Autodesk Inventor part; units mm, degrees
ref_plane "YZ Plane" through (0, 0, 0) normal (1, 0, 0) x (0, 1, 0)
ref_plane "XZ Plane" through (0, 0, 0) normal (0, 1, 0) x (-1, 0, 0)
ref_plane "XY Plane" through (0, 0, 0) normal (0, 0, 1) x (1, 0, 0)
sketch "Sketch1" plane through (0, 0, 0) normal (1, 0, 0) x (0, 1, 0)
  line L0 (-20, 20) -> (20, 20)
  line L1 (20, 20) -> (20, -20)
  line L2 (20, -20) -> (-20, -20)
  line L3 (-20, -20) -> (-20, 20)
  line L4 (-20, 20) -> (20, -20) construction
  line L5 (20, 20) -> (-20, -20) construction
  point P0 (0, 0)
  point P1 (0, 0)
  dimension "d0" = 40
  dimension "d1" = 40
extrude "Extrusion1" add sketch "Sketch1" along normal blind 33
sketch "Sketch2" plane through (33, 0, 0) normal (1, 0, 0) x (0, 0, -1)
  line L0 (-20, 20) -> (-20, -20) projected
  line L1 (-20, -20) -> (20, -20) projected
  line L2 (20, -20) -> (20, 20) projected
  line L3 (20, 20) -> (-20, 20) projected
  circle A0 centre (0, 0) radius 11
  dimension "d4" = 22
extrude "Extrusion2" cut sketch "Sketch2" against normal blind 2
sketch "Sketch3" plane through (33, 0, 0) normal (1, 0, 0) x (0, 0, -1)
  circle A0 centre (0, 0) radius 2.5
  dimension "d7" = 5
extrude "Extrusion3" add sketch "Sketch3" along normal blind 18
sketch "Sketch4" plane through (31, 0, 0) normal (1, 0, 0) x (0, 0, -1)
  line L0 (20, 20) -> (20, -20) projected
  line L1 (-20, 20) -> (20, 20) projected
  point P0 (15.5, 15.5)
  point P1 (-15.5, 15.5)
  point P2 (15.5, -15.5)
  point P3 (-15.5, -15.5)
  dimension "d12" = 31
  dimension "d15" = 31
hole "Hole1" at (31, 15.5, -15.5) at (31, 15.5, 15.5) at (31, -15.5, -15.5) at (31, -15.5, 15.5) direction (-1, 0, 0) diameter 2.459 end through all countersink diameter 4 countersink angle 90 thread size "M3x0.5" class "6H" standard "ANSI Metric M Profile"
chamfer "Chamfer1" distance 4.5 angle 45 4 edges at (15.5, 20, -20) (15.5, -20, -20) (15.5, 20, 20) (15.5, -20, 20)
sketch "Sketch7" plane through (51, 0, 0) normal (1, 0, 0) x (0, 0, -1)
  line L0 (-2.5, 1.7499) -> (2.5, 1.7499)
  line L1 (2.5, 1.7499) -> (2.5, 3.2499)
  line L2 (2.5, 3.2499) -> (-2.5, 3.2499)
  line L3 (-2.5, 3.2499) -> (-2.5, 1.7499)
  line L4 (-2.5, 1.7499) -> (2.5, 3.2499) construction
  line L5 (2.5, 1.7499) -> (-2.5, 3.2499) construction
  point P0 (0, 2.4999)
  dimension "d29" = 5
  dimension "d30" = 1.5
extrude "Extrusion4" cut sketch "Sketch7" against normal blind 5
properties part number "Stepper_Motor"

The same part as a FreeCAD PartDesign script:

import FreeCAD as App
import Part
import Sketcher

V = App.Vector
Q = App.Units.Quantity


def edges_at(feature, points):
    """Names of the edges that pass closest to the given points."""
    edges = feature.Shape.Edges
    near = lambda p: min(range(len(edges)), key=lambda i: edges[i].distToShape(Part.Vertex(*p))[0])
    return sorted({f"Edge{near(p) + 1}" for p in points})

doc = App.newDocument("Part")
body = doc.addObject("PartDesign::Body", "Body")

# Sketch on YZ plane
sketch1 = doc.addObject("Sketcher::SketchObject", "Sketch")
body.addObject(sketch1)
sketch1.AttachmentSupport = (doc.YZ_Plane, [""])
sketch1.MapMode = "FlatFace"
sketch1.addGeometry(Part.LineSegment(V(20, 20, 0), V(-20, 20, 0)), False)
sketch1.addGeometry(Part.LineSegment(V(-20, 20, 0), V(-20, -20, 0)), False)
sketch1.addGeometry(Part.LineSegment(V(-20, -20, 0), V(20, -20, 0)), False)
sketch1.addGeometry(Part.LineSegment(V(20, -20, 0), V(20, 20, 0)), False)
sketch1.addConstraint(Sketcher.Constraint("Coincident", 0, 2, 1, 1))
sketch1.addConstraint(Sketcher.Constraint("Coincident", 1, 2, 2, 1))
sketch1.addConstraint(Sketcher.Constraint("Coincident", 2, 2, 3, 1))
sketch1.addConstraint(Sketcher.Constraint("Coincident", 3, 2, 0, 1))
sketch1.addConstraint(Sketcher.Constraint("Horizontal", 0))
sketch1.addConstraint(Sketcher.Constraint("Vertical", 1))
sketch1.addConstraint(Sketcher.Constraint("Horizontal", 2))
sketch1.addConstraint(Sketcher.Constraint("Vertical", 3))
sketch1.addConstraint(Sketcher.Constraint("Symmetric", 0, 2, 2, 2, -1, 1))
sketch1.addConstraint(Sketcher.Constraint("Equal", 2, 1))
sketch1.addConstraint(Sketcher.Constraint("DistanceX", 0, 2, 0, 1, Q("40 mm")))
pad1 = doc.addObject("PartDesign::Pad", "Pad")
body.addObject(pad1)
pad1.Profile = sketch1
pad1.Length = 33

# Sketch on YZ plane
sketch2 = doc.addObject("Sketcher::SketchObject", "Sketch001")
body.addObject(sketch2)
sketch2.AttachmentSupport = (doc.YZ_Plane, [""])
sketch2.MapMode = "FlatFace"
sketch2.AttachmentOffset = App.Placement(V(0, 0, 33), App.Rotation())
sketch2.addGeometry(Part.LineSegment(V(20, -20, 0), V(20, 20, 0)), False)
sketch2.addGeometry(Part.LineSegment(V(20, 20, 0), V(-20, 20, 0)), False)
sketch2.addGeometry(Part.LineSegment(V(-20, 20, 0), V(-20, -20, 0)), False)
sketch2.addGeometry(Part.LineSegment(V(-20, -20, 0), V(20, -20, 0)), False)
sketch2.addGeometry(Part.Circle(V(0, 0, 0), V(0, 0, 1), 11), False)
sketch2.addConstraint(Sketcher.Constraint("Coincident", 0, 2, 1, 1))
sketch2.addConstraint(Sketcher.Constraint("Coincident", 1, 2, 2, 1))
sketch2.addConstraint(Sketcher.Constraint("Coincident", 2, 2, 3, 1))
sketch2.addConstraint(Sketcher.Constraint("Coincident", 3, 2, 0, 1))
sketch2.addConstraint(Sketcher.Constraint("Vertical", 0))
sketch2.addConstraint(Sketcher.Constraint("Horizontal", 1))
sketch2.addConstraint(Sketcher.Constraint("Vertical", 2))
sketch2.addConstraint(Sketcher.Constraint("Horizontal", 3))
sketch2.addConstraint(Sketcher.Constraint("Coincident", 4, 3, -1, 1))
sketch2.addConstraint(Sketcher.Constraint("Symmetric", 0, 2, 2, 2, -1, 1))
sketch2.addConstraint(Sketcher.Constraint("Equal", 3, 0))
sketch2.addConstraint(Sketcher.Constraint("Diameter", 4, Q("22 mm")))
sketch2.addConstraint(Sketcher.Constraint("DistanceX", 1, 2, 1, 1, Q("40 mm")))
pocket1 = doc.addObject("PartDesign::Pocket", "Pocket")
body.addObject(pocket1)
pocket1.Profile = sketch2
pocket1.Length = 2

# Sketch on YZ plane
sketch3 = doc.addObject("Sketcher::SketchObject", "Sketch002")
body.addObject(sketch3)
sketch3.AttachmentSupport = (doc.YZ_Plane, [""])
sketch3.MapMode = "FlatFace"
sketch3.AttachmentOffset = App.Placement(V(0, 0, 33), App.Rotation())
sketch3.addGeometry(Part.Circle(V(0, 0, 0), V(0, 0, 1), 2.5), False)
sketch3.addConstraint(Sketcher.Constraint("Coincident", 0, 3, -1, 1))
sketch3.addConstraint(Sketcher.Constraint("Diameter", 0, Q("5 mm")))
pad2 = doc.addObject("PartDesign::Pad", "Pad001")
body.addObject(pad2)
pad2.Profile = sketch3
pad2.Length = 18

# Sketch on YZ plane
sketch4 = doc.addObject("Sketcher::SketchObject", "Sketch003")
body.addObject(sketch4)
sketch4.AttachmentSupport = (doc.YZ_Plane, [""])
sketch4.MapMode = "FlatFace"
sketch4.AttachmentOffset = App.Placement(V(0, 0, 31), App.Rotation())
sketch4.addGeometry(Part.Circle(V(15.5, -15.5, 0), V(0, 0, 1), 1.2), False)
sketch4.addGeometry(Part.Circle(V(15.5, 15.5, 0), V(0, 0, 1), 1.2), False)
sketch4.addGeometry(Part.Circle(V(-15.5, -15.5, 0), V(0, 0, 1), 1.2), False)
sketch4.addGeometry(Part.Circle(V(-15.5, 15.5, 0), V(0, 0, 1), 1.2), False)
sketch4.addConstraint(Sketcher.Constraint("Equal", 0, 1))
sketch4.addConstraint(Sketcher.Constraint("Equal", 1, 2))
sketch4.addConstraint(Sketcher.Constraint("Equal", 2, 3))
sketch4.addConstraint(Sketcher.Constraint("Symmetric", 1, 3, 2, 3, -1, 1))
sketch4.addConstraint(Sketcher.Constraint("Symmetric", 0, 3, 3, 3, -1, 1))
sketch4.addConstraint(Sketcher.Constraint("Symmetric", 0, 3, 2, 3, -2))
sketch4.addConstraint(Sketcher.Constraint("Diameter", 0, Q("2.459 mm")))
sketch4.addConstraint(Sketcher.Constraint("DistanceY", 0, 3, 1, 3, Q("31 mm")))
sketch4.addConstraint(Sketcher.Constraint("DistanceX", 2, 3, 0, 3, Q("31 mm")))
doc.recompute()
hole = doc.addObject("PartDesign::Hole", "Hole")
body.addObject(hole)
hole.Profile = sketch4
hole.ThreadType = "None"
hole.Diameter = 2.459
hole.DepthType = "ThroughAll"
hole.HoleCutType = "Countersink"
hole.HoleCutDiameter = 4
hole.HoleCutCountersinkAngle = 90
doc.recompute()

chamfer = doc.addObject("PartDesign::Chamfer", "Chamfer")
body.addObject(chamfer)
chamfer.Base = (hole, edges_at(hole, [
    (15.5, 20, -20),
    (15.5, -20, -20),
    (15.5, 20, 20),
    (15.5, -20, 20),
]))
chamfer.Size = 4.5

# Sketch on YZ plane
sketch5 = doc.addObject("Sketcher::SketchObject", "Sketch004")
body.addObject(sketch5)
sketch5.AttachmentSupport = (doc.YZ_Plane, [""])
sketch5.MapMode = "FlatFace"
sketch5.AttachmentOffset = App.Placement(V(0, 0, 51), App.Rotation())
sketch5.addGeometry(Part.LineSegment(V(3.2, 2.5, 0), V(1.7, 2.5, 0)), False)
sketch5.addGeometry(Part.LineSegment(V(1.7, 2.5, 0), V(1.7, -2.5, 0)), False)
sketch5.addGeometry(Part.LineSegment(V(1.7, -2.5, 0), V(3.2, -2.5, 0)), False)
sketch5.addGeometry(Part.LineSegment(V(3.2, -2.5, 0), V(3.2, 2.5, 0)), False)
sketch5.addConstraint(Sketcher.Constraint("Coincident", 0, 2, 1, 1))
sketch5.addConstraint(Sketcher.Constraint("Coincident", 1, 2, 2, 1))
sketch5.addConstraint(Sketcher.Constraint("Coincident", 2, 2, 3, 1))
sketch5.addConstraint(Sketcher.Constraint("Coincident", 3, 2, 0, 1))
sketch5.addConstraint(Sketcher.Constraint("Horizontal", 0))
sketch5.addConstraint(Sketcher.Constraint("Vertical", 1))
sketch5.addConstraint(Sketcher.Constraint("Horizontal", 2))
sketch5.addConstraint(Sketcher.Constraint("Vertical", 3))
sketch5.addConstraint(Sketcher.Constraint("DistanceY", 1, 2, 1, 1, Q("5 mm")))
sketch5.addConstraint(Sketcher.Constraint("DistanceX", 0, 2, 0, 1, Q("1.5 mm")))
sketch5.addConstraint(Sketcher.Constraint("DistanceY", -1, 1, 0, 2, Q("2.5 mm")))
sketch5.addConstraint(Sketcher.Constraint("DistanceX", -1, 1, 0, 2, Q("1.75 mm")))
pocket2 = doc.addObject("PartDesign::Pocket", "Pocket001")
body.addObject(pocket2)
pocket2.Profile = sketch5
pocket2.Length = 5

doc.recompute()
